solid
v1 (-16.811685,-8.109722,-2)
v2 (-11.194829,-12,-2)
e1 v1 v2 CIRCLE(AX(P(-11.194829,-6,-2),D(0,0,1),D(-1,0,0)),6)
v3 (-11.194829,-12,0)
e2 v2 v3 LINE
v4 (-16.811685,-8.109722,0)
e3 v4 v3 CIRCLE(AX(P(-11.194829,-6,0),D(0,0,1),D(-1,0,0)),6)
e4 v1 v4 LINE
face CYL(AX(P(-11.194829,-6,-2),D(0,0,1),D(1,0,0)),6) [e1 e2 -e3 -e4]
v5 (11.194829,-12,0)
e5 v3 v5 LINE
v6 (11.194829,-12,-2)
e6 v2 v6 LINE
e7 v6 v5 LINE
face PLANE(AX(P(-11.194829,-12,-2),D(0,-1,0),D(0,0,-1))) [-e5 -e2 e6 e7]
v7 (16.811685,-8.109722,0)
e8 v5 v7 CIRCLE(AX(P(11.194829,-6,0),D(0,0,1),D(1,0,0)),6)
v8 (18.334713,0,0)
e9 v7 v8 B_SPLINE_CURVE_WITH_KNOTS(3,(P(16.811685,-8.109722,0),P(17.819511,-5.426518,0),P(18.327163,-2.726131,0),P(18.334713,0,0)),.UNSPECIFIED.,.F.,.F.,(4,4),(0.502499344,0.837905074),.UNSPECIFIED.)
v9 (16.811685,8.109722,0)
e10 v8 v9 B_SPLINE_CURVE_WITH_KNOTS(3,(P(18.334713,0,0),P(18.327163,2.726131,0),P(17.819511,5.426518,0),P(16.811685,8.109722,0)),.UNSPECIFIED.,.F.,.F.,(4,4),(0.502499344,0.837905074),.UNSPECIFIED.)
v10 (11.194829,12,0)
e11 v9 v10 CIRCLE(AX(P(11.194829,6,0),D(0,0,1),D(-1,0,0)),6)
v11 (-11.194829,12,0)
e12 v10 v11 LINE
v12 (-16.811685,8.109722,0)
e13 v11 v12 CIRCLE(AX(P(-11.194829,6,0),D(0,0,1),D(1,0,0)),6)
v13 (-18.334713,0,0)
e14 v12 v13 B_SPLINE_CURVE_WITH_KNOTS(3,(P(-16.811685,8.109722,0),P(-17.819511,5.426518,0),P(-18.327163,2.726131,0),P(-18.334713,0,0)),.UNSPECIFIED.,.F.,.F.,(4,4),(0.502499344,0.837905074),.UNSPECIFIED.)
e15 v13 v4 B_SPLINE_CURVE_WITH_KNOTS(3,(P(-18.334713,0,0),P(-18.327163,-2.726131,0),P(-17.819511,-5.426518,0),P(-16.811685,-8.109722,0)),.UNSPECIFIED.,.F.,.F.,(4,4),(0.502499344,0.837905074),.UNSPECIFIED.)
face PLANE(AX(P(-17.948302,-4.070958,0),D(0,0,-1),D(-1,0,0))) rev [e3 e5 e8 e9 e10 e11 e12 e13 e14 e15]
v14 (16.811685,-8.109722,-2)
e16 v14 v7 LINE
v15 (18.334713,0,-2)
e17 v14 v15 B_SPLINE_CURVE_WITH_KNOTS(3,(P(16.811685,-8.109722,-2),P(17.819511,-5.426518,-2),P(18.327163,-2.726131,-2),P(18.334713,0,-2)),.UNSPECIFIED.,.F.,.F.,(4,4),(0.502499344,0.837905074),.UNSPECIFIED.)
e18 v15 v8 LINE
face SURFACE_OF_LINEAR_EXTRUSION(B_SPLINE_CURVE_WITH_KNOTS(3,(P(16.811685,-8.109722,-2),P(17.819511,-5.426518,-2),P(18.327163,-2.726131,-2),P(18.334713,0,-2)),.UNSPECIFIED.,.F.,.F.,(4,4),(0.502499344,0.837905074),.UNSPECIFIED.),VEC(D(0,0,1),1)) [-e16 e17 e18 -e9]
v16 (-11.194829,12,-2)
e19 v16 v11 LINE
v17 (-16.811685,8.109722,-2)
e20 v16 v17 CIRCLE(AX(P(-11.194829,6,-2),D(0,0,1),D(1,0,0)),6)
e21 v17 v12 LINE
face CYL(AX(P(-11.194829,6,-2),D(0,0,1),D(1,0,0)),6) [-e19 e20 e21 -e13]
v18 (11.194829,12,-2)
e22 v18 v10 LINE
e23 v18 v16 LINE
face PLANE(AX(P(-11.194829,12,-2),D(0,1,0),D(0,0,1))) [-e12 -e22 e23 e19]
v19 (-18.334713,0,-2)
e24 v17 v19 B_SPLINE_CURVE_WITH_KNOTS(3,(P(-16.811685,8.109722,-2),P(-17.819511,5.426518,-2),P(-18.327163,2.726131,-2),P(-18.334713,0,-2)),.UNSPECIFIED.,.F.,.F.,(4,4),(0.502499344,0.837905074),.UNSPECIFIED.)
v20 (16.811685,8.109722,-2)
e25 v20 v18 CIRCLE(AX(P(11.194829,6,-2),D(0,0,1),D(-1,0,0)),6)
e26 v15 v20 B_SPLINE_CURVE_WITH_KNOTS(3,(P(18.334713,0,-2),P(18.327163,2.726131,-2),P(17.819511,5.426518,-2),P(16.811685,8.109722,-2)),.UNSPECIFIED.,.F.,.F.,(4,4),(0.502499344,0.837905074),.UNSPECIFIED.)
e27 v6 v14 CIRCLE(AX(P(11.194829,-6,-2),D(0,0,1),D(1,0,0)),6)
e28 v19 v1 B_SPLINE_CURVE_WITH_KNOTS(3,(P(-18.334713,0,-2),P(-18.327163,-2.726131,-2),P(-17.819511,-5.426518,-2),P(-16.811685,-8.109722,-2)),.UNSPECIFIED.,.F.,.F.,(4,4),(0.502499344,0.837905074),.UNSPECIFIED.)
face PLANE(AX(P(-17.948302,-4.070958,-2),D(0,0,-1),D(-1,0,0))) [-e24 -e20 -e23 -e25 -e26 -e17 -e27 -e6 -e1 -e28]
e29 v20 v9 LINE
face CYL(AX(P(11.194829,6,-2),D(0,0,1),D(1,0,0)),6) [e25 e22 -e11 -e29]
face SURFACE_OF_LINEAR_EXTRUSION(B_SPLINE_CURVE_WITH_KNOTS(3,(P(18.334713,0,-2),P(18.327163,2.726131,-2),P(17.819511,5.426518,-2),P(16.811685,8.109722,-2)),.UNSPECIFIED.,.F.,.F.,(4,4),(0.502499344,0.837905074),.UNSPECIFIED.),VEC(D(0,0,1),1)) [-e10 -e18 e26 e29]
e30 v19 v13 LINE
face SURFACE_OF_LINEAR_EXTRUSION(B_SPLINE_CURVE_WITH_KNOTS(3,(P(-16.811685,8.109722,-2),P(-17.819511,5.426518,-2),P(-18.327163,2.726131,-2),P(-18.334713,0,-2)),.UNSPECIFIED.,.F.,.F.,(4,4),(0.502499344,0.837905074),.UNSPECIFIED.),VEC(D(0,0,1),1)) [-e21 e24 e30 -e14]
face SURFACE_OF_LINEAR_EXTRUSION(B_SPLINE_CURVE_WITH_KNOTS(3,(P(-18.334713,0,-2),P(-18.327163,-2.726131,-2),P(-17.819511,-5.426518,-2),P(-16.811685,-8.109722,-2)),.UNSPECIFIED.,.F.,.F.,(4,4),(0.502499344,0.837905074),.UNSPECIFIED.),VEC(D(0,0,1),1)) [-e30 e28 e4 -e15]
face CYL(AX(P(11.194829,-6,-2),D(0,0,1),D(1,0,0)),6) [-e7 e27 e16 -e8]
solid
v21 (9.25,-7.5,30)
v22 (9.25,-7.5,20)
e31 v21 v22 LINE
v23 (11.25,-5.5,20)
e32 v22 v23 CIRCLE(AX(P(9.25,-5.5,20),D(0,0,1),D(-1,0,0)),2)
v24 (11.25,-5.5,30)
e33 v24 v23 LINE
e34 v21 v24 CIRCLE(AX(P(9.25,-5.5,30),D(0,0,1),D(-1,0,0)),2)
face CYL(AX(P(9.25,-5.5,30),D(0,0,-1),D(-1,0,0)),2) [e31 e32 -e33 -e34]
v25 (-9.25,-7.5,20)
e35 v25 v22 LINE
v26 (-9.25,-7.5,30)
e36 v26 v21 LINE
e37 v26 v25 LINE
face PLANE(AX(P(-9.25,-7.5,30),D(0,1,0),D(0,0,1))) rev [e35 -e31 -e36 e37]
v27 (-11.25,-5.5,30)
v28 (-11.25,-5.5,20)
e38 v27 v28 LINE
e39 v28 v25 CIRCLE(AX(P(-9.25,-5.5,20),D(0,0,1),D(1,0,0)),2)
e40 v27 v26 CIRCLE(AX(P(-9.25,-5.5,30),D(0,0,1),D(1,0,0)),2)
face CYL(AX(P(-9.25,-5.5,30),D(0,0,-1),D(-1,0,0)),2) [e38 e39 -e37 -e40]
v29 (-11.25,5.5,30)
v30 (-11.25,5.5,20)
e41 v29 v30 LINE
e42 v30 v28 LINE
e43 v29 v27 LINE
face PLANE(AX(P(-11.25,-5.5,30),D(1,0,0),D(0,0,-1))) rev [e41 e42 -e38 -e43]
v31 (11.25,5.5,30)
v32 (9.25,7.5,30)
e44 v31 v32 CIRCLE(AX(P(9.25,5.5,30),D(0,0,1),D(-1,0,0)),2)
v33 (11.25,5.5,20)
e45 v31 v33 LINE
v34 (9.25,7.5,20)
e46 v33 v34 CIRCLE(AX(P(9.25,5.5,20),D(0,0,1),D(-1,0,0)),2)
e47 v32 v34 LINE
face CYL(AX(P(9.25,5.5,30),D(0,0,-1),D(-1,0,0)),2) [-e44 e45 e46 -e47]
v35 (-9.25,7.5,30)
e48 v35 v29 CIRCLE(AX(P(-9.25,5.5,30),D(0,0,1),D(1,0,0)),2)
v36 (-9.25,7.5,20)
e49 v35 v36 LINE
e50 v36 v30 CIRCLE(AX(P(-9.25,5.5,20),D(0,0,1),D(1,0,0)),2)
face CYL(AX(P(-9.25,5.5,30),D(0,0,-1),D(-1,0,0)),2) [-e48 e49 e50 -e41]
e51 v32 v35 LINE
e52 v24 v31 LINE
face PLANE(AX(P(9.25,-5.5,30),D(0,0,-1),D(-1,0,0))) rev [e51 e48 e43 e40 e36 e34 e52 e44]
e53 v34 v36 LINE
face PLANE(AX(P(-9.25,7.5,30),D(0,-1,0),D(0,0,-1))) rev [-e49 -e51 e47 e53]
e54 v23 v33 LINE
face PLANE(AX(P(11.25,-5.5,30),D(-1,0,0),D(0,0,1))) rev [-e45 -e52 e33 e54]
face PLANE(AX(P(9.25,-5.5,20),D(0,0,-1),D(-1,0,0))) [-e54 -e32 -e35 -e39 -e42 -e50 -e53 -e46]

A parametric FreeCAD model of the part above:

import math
import FreeCAD as App
import Part
import Sketcher
Q = App.Units.Quantity

doc = App.newDocument("Part")
params = doc.addObject("Spreadsheet::Sheet", "Params")
for row, (alias, value) in enumerate([
    ("sketch1_radius", "2 mm"),
    ("sketch1_height", "11 mm"),
    ("sketch1_width", "18.5 mm"),
    ("pad1_length", "10 mm"),
    ("sketch2_radius", "2 mm"),
    ("sketch2_height", "11 mm"),
    ("sketch2_width", "18.5 mm"),
    ("pad2_length", "2 mm"),
    ("sketch3_radius", "2 mm"),
    ("sketch3_height", "11 mm"),
    ("sketch3_width", "18.5 mm"),
    ("pad3_length", "2 mm"),
    ("sketch4_radius", "6 mm"),
    ("sketch4_radius2", "6 mm"),
    ("sketch4_radius3", "6 mm"),
    ("sketch4_radius4", "6 mm"),
    ("pad4_length", "2 mm"),
], start=1):
    params.set(f"A{row}", alias)
    params.set(f"B{row}", "=" + value)
    params.setAlias(f"B{row}", alias)

body = doc.addObject("PartDesign::Body", "Body")

# Sketch on XY plane
sketch1 = doc.addObject("Sketcher::SketchObject", "Sketch")
body.addObject(sketch1)
sketch1.AttachmentSupport = (doc.XY_Plane, [""])
sketch1.MapMode = "FlatFace"
sketch1.AttachmentOffset = App.Placement(App.Vector(0, 0, 20), App.Rotation())
sketch1.addGeometry([
    Part.LineSegment(App.Vector(-9.2, -7.5, 0), App.Vector(9.2, -7.5, 0)),  # 0
    Part.ArcOfCircle(Part.Circle(App.Vector(9.2, -5.5, 0), App.Vector(0, 0, 1), 2), math.radians(-90), math.radians(0)),  # 1
    Part.LineSegment(App.Vector(11.2, -5.5, 0), App.Vector(11.2, 5.5, 0)),  # 2
    Part.ArcOfCircle(Part.Circle(App.Vector(9.2, 5.5, 0), App.Vector(0, 0, 1), 2), math.radians(0), math.radians(90)),  # 3
    Part.LineSegment(App.Vector(9.2, 7.5, 0), App.Vector(-9.2, 7.5, 0)),  # 4
    Part.ArcOfCircle(Part.Circle(App.Vector(-9.2, 5.5, 0), App.Vector(0, 0, 1), 2), math.radians(90), math.radians(180)),  # 5
    Part.LineSegment(App.Vector(-11.2, 5.5, 0), App.Vector(-11.2, -5.5, 0)),  # 6
    Part.ArcOfCircle(Part.Circle(App.Vector(-9.2, -5.5, 0), App.Vector(0, 0, 1), 2), math.radians(-180), math.radians(-90)),  # 7
], False)
sketch1.addConstraint([
    Sketcher.Constraint("Tangent", 0, 2, 1, 1),
    Sketcher.Constraint("Tangent", 1, 2, 2, 1),
    Sketcher.Constraint("Tangent", 2, 2, 3, 1),
    Sketcher.Constraint("Tangent", 3, 2, 4, 1),
    Sketcher.Constraint("Tangent", 4, 2, 5, 1),
    Sketcher.Constraint("Tangent", 5, 2, 6, 1),
    Sketcher.Constraint("Tangent", 6, 2, 7, 1),
    Sketcher.Constraint("Tangent", 7, 2, 0, 1),
    Sketcher.Constraint("Horizontal", 0),
    Sketcher.Constraint("Vertical", 2),
    Sketcher.Constraint("Horizontal", 4),
    Sketcher.Constraint("Vertical", 6),
    Sketcher.Constraint("Equal", 1, 3),
    Sketcher.Constraint("Equal", 3, 5),
    Sketcher.Constraint("Equal", 5, 7),
    Sketcher.Constraint("Symmetric", 1, 3, 5, 3, -1, 1),
    Sketcher.Constraint("Radius", 1, Q("2 mm")),
    Sketcher.Constraint("DistanceY", 2, 1, 2, 2, Q("11 mm")),
    Sketcher.Constraint("DistanceX", 0, 1, 0, 2, Q("18.5 mm")),
])
sketch1.setExpression("Constraints[16]", "Params.sketch1_radius")
sketch1.setExpression("Constraints[17]", "Params.sketch1_height")
sketch1.setExpression("Constraints[18]", "Params.sketch1_width")
pad1 = doc.addObject("PartDesign::Pad", "Pad")
body.addObject(pad1)
pad1.Profile = sketch1
pad1.setExpression("Length", "Params.pad1_length")

# Sketch on XY plane
sketch2 = doc.addObject("Sketcher::SketchObject", "Sketch001")
body.addObject(sketch2)
sketch2.AttachmentSupport = (doc.XY_Plane, [""])
sketch2.MapMode = "FlatFace"
sketch2.AttachmentOffset = App.Placement(App.Vector(0, 0, 25.8), App.Rotation())
sketch2.addGeometry([
    Part.LineSegment(App.Vector(-9.2, -7.5, 0), App.Vector(9.2, -7.5, 0)),  # 0
    Part.ArcOfCircle(Part.Circle(App.Vector(9.2, -5.5, 0), App.Vector(0, 0, 1), 2), math.radians(-90), math.radians(0)),  # 1
    Part.LineSegment(App.Vector(11.2, -5.5, 0), App.Vector(11.2, 5.5, 0)),  # 2
    Part.ArcOfCircle(Part.Circle(App.Vector(9.2, 5.5, 0), App.Vector(0, 0, 1), 2), math.radians(0), math.radians(90)),  # 3
    Part.LineSegment(App.Vector(9.2, 7.5, 0), App.Vector(-9.2, 7.5, 0)),  # 4
    Part.ArcOfCircle(Part.Circle(App.Vector(-9.2, 5.5, 0), App.Vector(0, 0, 1), 2), math.radians(90), math.radians(180)),  # 5
    Part.LineSegment(App.Vector(-11.2, 5.5, 0), App.Vector(-11.2, -5.5, 0)),  # 6
    Part.ArcOfCircle(Part.Circle(App.Vector(-9.2, -5.5, 0), App.Vector(0, 0, 1), 2), math.radians(-180), math.radians(-90)),  # 7
    Part.LineSegment(App.Vector(-8.6, -5.4, 0), App.Vector(-8.6, 5.4, 0)),  # 8
    Part.LineSegment(App.Vector(-8.6, 5.4, 0), App.Vector(8.6, 5.4, 0)),  # 9
    Part.LineSegment(App.Vector(8.6, 5.4, 0), App.Vector(8.6, -5.4, 0)),  # 10
    Part.LineSegment(App.Vector(8.6, -5.4, 0), App.Vector(-8.6, -5.4, 0)),  # 11
], False)
sketch2.addConstraint([
    Sketcher.Constraint("Tangent", 0, 2, 1, 1),
    Sketcher.Constraint("Tangent", 1, 2, 2, 1),
    Sketcher.Constraint("Tangent", 2, 2, 3, 1),
    Sketcher.Constraint("Tangent", 3, 2, 4, 1),
    Sketcher.Constraint("Tangent", 4, 2, 5, 1),
    Sketcher.Constraint("Tangent", 5, 2, 6, 1),
    Sketcher.Constraint("Tangent", 6, 2, 7, 1),
    Sketcher.Constraint("Tangent", 7, 2, 0, 1),
    Sketcher.Constraint("Coincident", 8, 2, 9, 1),
    Sketcher.Constraint("Coincident", 9, 2, 10, 1),
    Sketcher.Constraint("Coincident", 10, 2, 11, 1),
    Sketcher.Constraint("Coincident", 11, 2, 8, 1),
    Sketcher.Constraint("Horizontal", 0),
    Sketcher.Constraint("Vertical", 2),
    Sketcher.Constraint("Horizontal", 4),
    Sketcher.Constraint("Vertical", 6),
    Sketcher.Constraint("Vertical", 8),
    Sketcher.Constraint("Horizontal", 9),
    Sketcher.Constraint("Vertical", 10),
    Sketcher.Constraint("Horizontal", 11),
    Sketcher.Constraint("Equal", 1, 3),
    Sketcher.Constraint("Equal", 3, 5),
    Sketcher.Constraint("Equal", 5, 7),
    Sketcher.Constraint("Symmetric", 1, 3, 5, 3, -1, 1),
    Sketcher.Constraint("Symmetric", 8, 2, 10, 2, -1, 1),
    Sketcher.Constraint("Radius", 1, Q("2 mm")),
    Sketcher.Constraint("DistanceY", 2, 1, 2, 2, Q("11 mm")),
    Sketcher.Constraint("DistanceX", 0, 1, 0, 2, Q("18.5 mm")),
    Sketcher.Constraint("DistanceX", 9, 1, 9, 2, Q("17.267499 mm")),
    Sketcher.Constraint("DistanceY", 8, 1, 8, 2, Q("10.808758 mm")),
])
sketch2.setExpression("Constraints[25]", "Params.sketch2_radius")
sketch2.setExpression("Constraints[26]", "Params.sketch2_height")
sketch2.setExpression("Constraints[27]", "Params.sketch2_width")
pad2 = doc.addObject("PartDesign::Pad", "Pad001")
body.addObject(pad2)
pad2.Profile = sketch2
pad2.setExpression("Length", "Params.pad2_length")

# Sketch on XY plane
sketch3 = doc.addObject("Sketcher::SketchObject", "Sketch002")
body.addObject(sketch3)
sketch3.AttachmentSupport = (doc.XY_Plane, [""])
sketch3.MapMode = "FlatFace"
sketch3.AttachmentOffset = App.Placement(App.Vector(0, 0, 25.8), App.Rotation())
sketch3.addGeometry([
    Part.LineSegment(App.Vector(-9.2, -7.5, 0), App.Vector(9.2, -7.5, 0)),  # 0
    Part.ArcOfCircle(Part.Circle(App.Vector(9.2, -5.5, 0), App.Vector(0, 0, 1), 2), math.radians(-90), math.radians(0)),  # 1
    Part.LineSegment(App.Vector(11.2, -5.5, 0), App.Vector(11.2, 5.5, 0)),  # 2
    Part.ArcOfCircle(Part.Circle(App.Vector(9.2, 5.5, 0), App.Vector(0, 0, 1), 2), math.radians(0), math.radians(90)),  # 3
    Part.LineSegment(App.Vector(9.2, 7.5, 0), App.Vector(-9.2, 7.5, 0)),  # 4
    Part.ArcOfCircle(Part.Circle(App.Vector(-9.2, 5.5, 0), App.Vector(0, 0, 1), 2), math.radians(90), math.radians(180)),  # 5
    Part.LineSegment(App.Vector(-11.2, 5.5, 0), App.Vector(-11.2, -5.5, 0)),  # 6
    Part.ArcOfCircle(Part.Circle(App.Vector(-9.2, -5.5, 0), App.Vector(0, 0, 1), 2), math.radians(-180), math.radians(-90)),  # 7
    Part.LineSegment(App.Vector(8.8, -6.8, 0), App.Vector(-8.8, -6.8, 0)),  # 8
    Part.LineSegment(App.Vector(-8.8, -6.8, 0), App.Vector(-8.8, -3.5, 0)),  # 9
    Part.LineSegment(App.Vector(-8.8, -3.5, 0), App.Vector(-10.9, -3.5, 0)),  # 10
    Part.LineSegment(App.Vector(-10.9, -3.5, 0), App.Vector(-10.9, 3.3, 0)),  # 11
    Part.LineSegment(App.Vector(-10.9, 3.3, 0), App.Vector(-8.8, 3.3, 0)),  # 12
    Part.LineSegment(App.Vector(-8.8, 3.3, 0), App.Vector(-8.8, 6.8, 0)),  # 13
    Part.LineSegment(App.Vector(-8.8, 6.8, 0), App.Vector(8.8, 6.8, 0)),  # 14
    Part.LineSegment(App.Vector(8.8, 6.8, 0), App.Vector(8.8, -6.8, 0)),  # 15
], False)
sketch3.addConstraint([
    Sketcher.Constraint("Tangent", 0, 2, 1, 1),
    Sketcher.Constraint("Tangent", 1, 2, 2, 1),
    Sketcher.Constraint("Tangent", 2, 2, 3, 1),
    Sketcher.Constraint("Tangent", 3, 2, 4, 1),
    Sketcher.Constraint("Tangent", 4, 2, 5, 1),
    Sketcher.Constraint("Tangent", 5, 2, 6, 1),
    Sketcher.Constraint("Tangent", 6, 2, 7, 1),
    Sketcher.Constraint("Tangent", 7, 2, 0, 1),
    Sketcher.Constraint("Coincident", 8, 2, 9, 1),
    Sketcher.Constraint("Coincident", 9, 2, 10, 1),
    Sketcher.Constraint("Coincident", 10, 2, 11, 1),
    Sketcher.Constraint("Coincident", 11, 2, 12, 1),
    Sketcher.Constraint("Coincident", 12, 2, 13, 1),
    Sketcher.Constraint("Coincident", 13, 2, 14, 1),
    Sketcher.Constraint("Coincident", 14, 2, 15, 1),
    Sketcher.Constraint("Coincident", 15, 2, 8, 1),
    Sketcher.Constraint("Horizontal", 0),
    Sketcher.Constraint("Vertical", 2),
    Sketcher.Constraint("Horizontal", 4),
    Sketcher.Constraint("Vertical", 6),
    Sketcher.Constraint("Horizontal", 8),
    Sketcher.Constraint("Vertical", 9),
    Sketcher.Constraint("Horizontal", 10),
    Sketcher.Constraint("Vertical", 11),
    Sketcher.Constraint("Horizontal", 12),
    Sketcher.Constraint("Vertical", 13),
    Sketcher.Constraint("Horizontal", 14),
    Sketcher.Constraint("Vertical", 15),
    Sketcher.Constraint("Equal", 1, 3),
    Sketcher.Constraint("Equal", 3, 5),
    Sketcher.Constraint("Equal", 5, 7),
    Sketcher.Constraint("Symmetric", 1, 3, 5, 3, -1, 1),
    Sketcher.Constraint("Symmetric", 8, 2, 14, 2, -1, 1),
    Sketcher.Constraint("Vertical", 9, 2, 12, 2),
    Sketcher.Constraint("Radius", 1, Q("2 mm")),
    Sketcher.Constraint("DistanceY", 2, 1, 2, 2, Q("11 mm")),
    Sketcher.Constraint("DistanceX", 0, 1, 0, 2, Q("18.5 mm")),
    Sketcher.Constraint("DistanceY", 15, 2, 15, 1, Q("13.670679 mm")),
    Sketcher.Constraint("DistanceX", 8, 2, 8, 1, Q("17.693426 mm")),
    Sketcher.Constraint("DistanceX", 10, 2, 10, 1, Q("2.031204 mm")),
    Sketcher.Constraint("DistanceY", 9, 1, 9, 2, Q("3.298502 mm")),
    Sketcher.Constraint("DistanceY", 11, 1, 11, 2, Q("6.836423 mm")),
])
sketch3.setExpression("Constraints[34]", "Params.sketch3_radius")
sketch3.setExpression("Constraints[35]", "Params.sketch3_height")
sketch3.setExpression("Constraints[36]", "Params.sketch3_width")
pad3 = doc.addObject("PartDesign::Pad", "Pad002")
body.addObject(pad3)
pad3.Profile = sketch3
pad3.setExpression("Length", "Params.pad3_length")
body2 = doc.addObject("PartDesign::Body", "Body001")

# Sketch on XY plane
sketch4 = doc.addObject("Sketcher::SketchObject", "Sketch003")
body2.addObject(sketch4)
sketch4.AttachmentSupport = (doc.getObject("XY_Plane001"), [""])
sketch4.MapMode = "FlatFace"
sketch4.addGeometry([
    Part.LineSegment(App.Vector(11.194829, 12, 0), App.Vector(-11.194829, 12, 0)),  # 0
    Part.ArcOfCircle(Part.Circle(App.Vector(-11.194829, 6, 0), App.Vector(0, 0, 1), 6), math.radians(90), math.radians(159.413549)),  # 1
    Part.BSplineCurve([App.Vector(-18.334713, 0, 0), App.Vector(-18.327163, 2.726131, 0), App.Vector(-17.819511, 5.426518, 0), App.Vector(-16.811685, 8.109722, 0)], [4, 4], [0.502499344, 0.837905074], False, 3, [1, 1, 1, 1], False),  # 2
    Part.BSplineCurve([App.Vector(-18.334713, 0, 0), App.Vector(-18.327163, -2.726131, 0), App.Vector(-17.819511, -5.426518, 0), App.Vector(-16.811685, -8.109722, 0)], [4, 4], [0.502499344, 0.837905074], False, 3, [1, 1, 1, 1], False),  # 3
    Part.ArcOfCircle(Part.Circle(App.Vector(-11.194829, -6, 0), App.Vector(0, 0, 1), 6), math.radians(-159.413549), math.radians(-90)),  # 4
    Part.LineSegment(App.Vector(-11.194829, -12, 0), App.Vector(11.194829, -12, 0)),  # 5
    Part.ArcOfCircle(Part.Circle(App.Vector(11.194829, -6, 0), App.Vector(0, 0, 1), 6), math.radians(-90), math.radians(-20.586451)),  # 6
    Part.BSplineCurve([App.Vector(18.334713, 0, 0), App.Vector(18.327163, -2.726131, 0), App.Vector(17.819511, -5.426518, 0), App.Vector(16.811685, -8.109722, 0)], [4, 4], [0.502499344, 0.837905074], False, 3, [1, 1, 1, 1], False),  # 7
    Part.BSplineCurve([App.Vector(18.334713, 0, 0), App.Vector(18.327163, 2.726131, 0), App.Vector(17.819511, 5.426518, 0), App.Vector(16.811685, 8.109722, 0)], [4, 4], [0.502499344, 0.837905074], False, 3, [1, 1, 1, 1], False),  # 8
    Part.ArcOfCircle(Part.Circle(App.Vector(11.194829, 6, 0), App.Vector(0, 0, 1), 6), math.radians(20.586451), math.radians(90)),  # 9
], False)
sketch4.addConstraint([
    Sketcher.Constraint("Block", 2),
    Sketcher.Constraint("Block", 3),
    Sketcher.Constraint("Block", 7),
    Sketcher.Constraint("Block", 8),
    Sketcher.Constraint("Coincident", 0, 2, 1, 1),
    Sketcher.Constraint("Coincident", 1, 2, 2, 2),
    Sketcher.Constraint("Coincident", 3, 2, 4, 1),
    Sketcher.Constraint("Coincident", 4, 2, 5, 1),
    Sketcher.Constraint("Coincident", 5, 2, 6, 1),
    Sketcher.Constraint("Coincident", 6, 2, 7, 2),
    Sketcher.Constraint("Coincident", 8, 2, 9, 1),
    Sketcher.Constraint("Coincident", 9, 2, 0, 1),
    Sketcher.Constraint("Horizontal", 0),
    Sketcher.Constraint("Horizontal", 5),
    Sketcher.Constraint("Radius", 1, Q("6 mm")),
    Sketcher.Constraint("Radius", 4, Q("6 mm")),
    Sketcher.Constraint("Radius", 6, Q("6 mm")),
    Sketcher.Constraint("Radius", 9, Q("6 mm")),
    Sketcher.Constraint("DistanceY", -1, 1, 1, 3, Q("6 mm")),
    Sketcher.Constraint("DistanceY", 4, 3, -1, 1, Q("6 mm")),
    Sketcher.Constraint("DistanceX", 0, 2, 0, 1, Q("22.389657 mm")),
    Sketcher.Constraint("DistanceX", 5, 1, 5, 2, Q("22.389657 mm")),
    Sketcher.Constraint("DistanceX", 0, 2, -1, 1, Q("11.194829 mm")),
    Sketcher.Constraint("DistanceX", 4, 2, -1, 1, Q("11.194829 mm")),
])
sketch4.setExpression("Constraints[14]", "Params.sketch4_radius")
sketch4.setExpression("Constraints[15]", "Params.sketch4_radius2")
sketch4.setExpression("Constraints[16]", "Params.sketch4_radius3")
sketch4.setExpression("Constraints[17]", "Params.sketch4_radius4")
pad4 = doc.addObject("PartDesign::Pad", "Pad003")
body2.addObject(pad4)
pad4.Profile = sketch4
pad4.setExpression("Length", "Params.pad4_length")
pad4.Reversed = True

doc.recompute()
